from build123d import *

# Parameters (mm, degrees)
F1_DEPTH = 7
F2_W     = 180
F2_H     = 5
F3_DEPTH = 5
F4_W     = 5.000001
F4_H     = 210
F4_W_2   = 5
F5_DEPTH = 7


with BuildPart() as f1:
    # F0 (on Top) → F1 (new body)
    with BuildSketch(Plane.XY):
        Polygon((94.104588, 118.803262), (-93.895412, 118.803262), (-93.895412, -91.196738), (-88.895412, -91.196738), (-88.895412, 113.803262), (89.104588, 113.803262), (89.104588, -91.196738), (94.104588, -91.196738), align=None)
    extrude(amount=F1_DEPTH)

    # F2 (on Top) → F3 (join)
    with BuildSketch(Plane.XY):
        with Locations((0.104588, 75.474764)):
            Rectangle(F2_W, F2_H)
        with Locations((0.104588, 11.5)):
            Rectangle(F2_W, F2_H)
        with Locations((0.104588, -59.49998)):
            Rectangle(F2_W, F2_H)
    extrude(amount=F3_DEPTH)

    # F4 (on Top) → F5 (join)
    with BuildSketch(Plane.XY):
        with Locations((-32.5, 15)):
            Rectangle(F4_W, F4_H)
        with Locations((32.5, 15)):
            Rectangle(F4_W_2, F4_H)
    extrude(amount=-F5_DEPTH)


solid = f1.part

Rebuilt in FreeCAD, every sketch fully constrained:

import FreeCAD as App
import Part
import Sketcher

V = App.Vector
Q = App.Units.Quantity

doc = App.newDocument("Part")
body = doc.addObject("PartDesign::Body", "Body")

sketch1 = body.newObject("Sketcher::SketchObject", "Sketch")
sketch1.AttachmentSupport = (doc.getObject("XY_Plane"), [""])
sketch1.MapMode = "FlatFace"
sketch1.addGeometry([
    Part.LineSegment(V(94, 119, 0), V(-94, 119, 0)),
    Part.LineSegment(V(-94, 119, 0), V(-94, -91, 0)),
    Part.LineSegment(V(-94, -91, 0), V(-89, -91, 0)),
    Part.LineSegment(V(-89, -91, 0), V(-89, 114, 0)),
    Part.LineSegment(V(-89, 114, 0), V(89, 114, 0)),
    Part.LineSegment(V(89, 114, 0), V(89, -91, 0)),
    Part.LineSegment(V(89, -91, 0), V(94, -91, 0)),
    Part.LineSegment(V(94, -91, 0), V(94, 119, 0)),
], False)
sketch1.addConstraint([
    Sketcher.Constraint("Coincident", 0, 2, 1, 1),
    Sketcher.Constraint("Coincident", 1, 2, 2, 1),
    Sketcher.Constraint("Coincident", 2, 2, 3, 1),
    Sketcher.Constraint("Coincident", 3, 2, 4, 1),
    Sketcher.Constraint("Coincident", 4, 2, 5, 1),
    Sketcher.Constraint("Coincident", 5, 2, 6, 1),
    Sketcher.Constraint("Coincident", 6, 2, 7, 1),
    Sketcher.Constraint("Coincident", 7, 2, 0, 1),
    Sketcher.Constraint("Horizontal", 0),
    Sketcher.Constraint("Vertical", 1),
    Sketcher.Constraint("Horizontal", 2),
    Sketcher.Constraint("Vertical", 3),
    Sketcher.Constraint("Horizontal", 4),
    Sketcher.Constraint("Vertical", 5),
    Sketcher.Constraint("Horizontal", 6),
    Sketcher.Constraint("Vertical", 7),
    Sketcher.Constraint("Horizontal", 2, 2, 5, 2),
    Sketcher.Constraint("Equal", 2, 6),
    Sketcher.Constraint("DistanceX", 0, 2, 0, 1, Q("188 mm")),
    Sketcher.Constraint("DistanceX", 2, 1, 2, 2, Q("5 mm")),
    Sketcher.Constraint("DistanceY", 1, 2, 1, 1, Q("210 mm")),
    Sketcher.Constraint("DistanceY", 3, 1, 3, 2, Q("205 mm")),
    Sketcher.Constraint("DistanceX", 0, 2, -1, 1, Q("93.895412 mm")),
    Sketcher.Constraint("DistanceY", -1, 1, 0, 2, Q("118.803262 mm")),
])
pad1 = body.newObject("PartDesign::Pad", "Pad")
pad1.Profile = sketch1
pad1.Length = 7

sketch2 = body.newObject("Sketcher::SketchObject", "Sketch001")
sketch2.AttachmentSupport = (doc.getObject("XY_Plane"), [""])
sketch2.MapMode = "FlatFace"
sketch2.addGeometry([
    Part.LineSegment(V(-90, 78, 0), V(-90, 73, 0)),
    Part.LineSegment(V(-90, 73, 0), V(90, 73, 0)),
    Part.LineSegment(V(90, 73, 0), V(90, 78, 0)),
    Part.LineSegment(V(90, 78, 0), V(-90, 78, 0)),
    Part.LineSegment(V(-90, 14, 0), V(-90, 9, 0)),
    Part.LineSegment(V(-90, 9, 0), V(90, 9, 0)),
    Part.LineSegment(V(90, 9, 0), V(90, 14, 0)),
    Part.LineSegment(V(90, 14, 0), V(-90, 14, 0)),
    Part.LineSegment(V(-90, -57, 0), V(-90, -62, 0)),
    Part.LineSegment(V(-90, -62, 0), V(90, -62, 0)),
    Part.LineSegment(V(90, -62, 0), V(90, -57, 0)),
    Part.LineSegment(V(90, -57, 0), V(-90, -57, 0)),
], False)
sketch2.addConstraint([
    Sketcher.Constraint("Coincident", 0, 2, 1, 1),
    Sketcher.Constraint("Coincident", 1, 2, 2, 1),
    Sketcher.Constraint("Coincident", 2, 2, 3, 1),
    Sketcher.Constraint("Coincident", 3, 2, 0, 1),
    Sketcher.Constraint("Coincident", 4, 2, 5, 1),
    Sketcher.Constraint("Coincident", 5, 2, 6, 1),
    Sketcher.Constraint("Coincident", 6, 2, 7, 1),
    Sketcher.Constraint("Coincident", 7, 2, 4, 1),
    Sketcher.Constraint("Coincident", 8, 2, 9, 1),
    Sketcher.Constraint("Coincident", 9, 2, 10, 1),
    Sketcher.Constraint("Coincident", 10, 2, 11, 1),
    Sketcher.Constraint("Coincident", 11, 2, 8, 1),
    Sketcher.Constraint("Vertical", 0),
    Sketcher.Constraint("Horizontal", 1),
    Sketcher.Constraint("Vertical", 2),
    Sketcher.Constraint("Horizontal", 3),
    Sketcher.Constraint("Vertical", 4),
    Sketcher.Constraint("Horizontal", 5),
    Sketcher.Constraint("Vertical", 6),
    Sketcher.Constraint("Horizontal", 7),
    Sketcher.Constraint("Vertical", 8),
    Sketcher.Constraint("Horizontal", 9),
    Sketcher.Constraint("Vertical", 10),
    Sketcher.Constraint("Horizontal", 11),
    Sketcher.Constraint("Vertical", 3, 2, 4, 2),
    Sketcher.Constraint("Vertical", 2, 2, 5, 2),
    Sketcher.Constraint("Vertical", 7, 2, 8, 2),
    Sketcher.Constraint("Vertical", 6, 2, 9, 2),
    Sketcher.Constraint("Equal", 2, 4),
    Sketcher.Constraint("Equal", 6, 8),
    Sketcher.Constraint("DistanceX", 1, 1, 1, 2, Q("180 mm")),
    Sketcher.Constraint("DistanceY", 0, 2, 0, 1, Q("5 mm")),
    Sketcher.Constraint("DistanceY", -1, 1, 4, 2, Q("9 mm")),
    Sketcher.Constraint("DistanceX", 0, 2, -1, 1, Q("89.895412 mm")),
    Sketcher.Constraint("DistanceY", 8, 2, -1, 1, Q("61.99998 mm")),
    Sketcher.Constraint("DistanceY", -1, 1, 0, 2, Q("72.974764 mm")),
])
pad2 = body.newObject("PartDesign::Pad", "Pad001")
pad2.Profile = sketch2
pad2.Length = 5

sketch3 = body.newObject("Sketcher::SketchObject", "Sketch002")
sketch3.AttachmentSupport = (doc.getObject("XY_Plane"), [""])
sketch3.MapMode = "FlatFace"
sketch3.addGeometry([
    Part.LineSegment(V(-35, 120, 0), V(-35, -90, 0)),
    Part.LineSegment(V(-35, -90, 0), V(-30, -90, 0)),
    Part.LineSegment(V(-30, -90, 0), V(-30, 120, 0)),
    Part.LineSegment(V(-30, 120, 0), V(-35, 120, 0)),
    Part.LineSegment(V(30, 120, 0), V(30, -90, 0)),
    Part.LineSegment(V(30, -90, 0), V(35, -90, 0)),
    Part.LineSegment(V(35, -90, 0), V(35, 120, 0)),
    Part.LineSegment(V(35, 120, 0), V(30, 120, 0)),
], False)
sketch3.addConstraint([
    Sketcher.Constraint("Coincident", 0, 2, 1, 1),
    Sketcher.Constraint("Coincident", 1, 2, 2, 1),
    Sketcher.Constraint("Coincident", 2, 2, 3, 1),
    Sketcher.Constraint("Coincident", 3, 2, 0, 1),
    Sketcher.Constraint("Coincident", 4, 2, 5, 1),
    Sketcher.Constraint("Coincident", 5, 2, 6, 1),
    Sketcher.Constraint("Coincident", 6, 2, 7, 1),
    Sketcher.Constraint("Coincident", 7, 2, 4, 1),
    Sketcher.Constraint("Vertical", 0),
    Sketcher.Constraint("Horizontal", 1),
    Sketcher.Constraint("Vertical", 2),
    Sketcher.Constraint("Horizontal", 3),
    Sketcher.Constraint("Vertical", 4),
    Sketcher.Constraint("Horizontal", 5),
    Sketcher.Constraint("Vertical", 6),
    Sketcher.Constraint("Horizontal", 7),
    Sketcher.Constraint("Symmetric", 1, 2, 4, 2, -2),
    Sketcher.Constraint("Symmetric", 3, 2, 6, 2, -2),
    Sketcher.Constraint("DistanceX", 1, 1, 1, 2, Q("5.000001 mm")),
    Sketcher.Constraint("DistanceY", 0, 2, 0, 1, Q("210 mm")),
    Sketcher.Constraint("DistanceX", 0, 2, -1, 1, Q("35 mm")),
    Sketcher.Constraint("DistanceY", 0, 2, -1, 1, Q("90 mm")),
])
pad3 = body.newObject("PartDesign::Pad", "Pad002")
pad3.Profile = sketch3
pad3.Length = 7
pad3.Reversed = True

doc.recompute()
